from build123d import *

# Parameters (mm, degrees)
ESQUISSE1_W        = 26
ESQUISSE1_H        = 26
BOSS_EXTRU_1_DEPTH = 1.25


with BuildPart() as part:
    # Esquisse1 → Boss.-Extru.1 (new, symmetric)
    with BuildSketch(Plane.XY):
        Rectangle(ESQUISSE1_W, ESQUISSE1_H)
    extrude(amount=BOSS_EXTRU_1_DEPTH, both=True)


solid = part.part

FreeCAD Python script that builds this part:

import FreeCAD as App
import Part
import Sketcher
Q = App.Units.Quantity


def add_polygon(sketch, points):
    """Adds a closed chain of lines whose ends are joined by coincident constraints."""
    first, n = sketch.GeometryCount, len(points)
    for a, b in zip(points, points[1:] + points[:1]):
        sketch.addGeometry(Part.LineSegment(App.Vector(*a, 0), App.Vector(*b, 0)), False)
    for i in range(n):
        sketch.addConstraint(Sketcher.Constraint("Coincident", first + i, 2, first + (i + 1) % n, 1))

doc = App.newDocument("Part")
body = doc.addObject("PartDesign::Body", "Body")

sketch1 = doc.addObject("Sketcher::SketchObject", "Sketch")
body.addObject(sketch1)
sketch1.AttachmentSupport = (doc.XY_Plane, [""])
sketch1.MapMode = "FlatFace"
add_polygon(sketch1, [(-13, 13), (-13, -13), (13, -13), (13, 13)])
sketch1.addConstraint(Sketcher.Constraint("Vertical", 0))
sketch1.addConstraint(Sketcher.Constraint("Horizontal", 1))
sketch1.addConstraint(Sketcher.Constraint("Vertical", 2))
sketch1.addConstraint(Sketcher.Constraint("Horizontal", 3))
sketch1.addConstraint(Sketcher.Constraint("Symmetric", 0, 2, 2, 2, -1, 1))
sketch1.addConstraint(Sketcher.Constraint("Equal", 3, 0))
sketch1.addConstraint(Sketcher.Constraint("DistanceX", 1, 1, 1, 2, Q("26 mm")))
pad1 = doc.addObject("PartDesign::Pad", "Pad")
body.addObject(pad1)
pad1.Profile = sketch1
pad1.Length = 2.5
pad1.Midplane = True

doc.recompute()
